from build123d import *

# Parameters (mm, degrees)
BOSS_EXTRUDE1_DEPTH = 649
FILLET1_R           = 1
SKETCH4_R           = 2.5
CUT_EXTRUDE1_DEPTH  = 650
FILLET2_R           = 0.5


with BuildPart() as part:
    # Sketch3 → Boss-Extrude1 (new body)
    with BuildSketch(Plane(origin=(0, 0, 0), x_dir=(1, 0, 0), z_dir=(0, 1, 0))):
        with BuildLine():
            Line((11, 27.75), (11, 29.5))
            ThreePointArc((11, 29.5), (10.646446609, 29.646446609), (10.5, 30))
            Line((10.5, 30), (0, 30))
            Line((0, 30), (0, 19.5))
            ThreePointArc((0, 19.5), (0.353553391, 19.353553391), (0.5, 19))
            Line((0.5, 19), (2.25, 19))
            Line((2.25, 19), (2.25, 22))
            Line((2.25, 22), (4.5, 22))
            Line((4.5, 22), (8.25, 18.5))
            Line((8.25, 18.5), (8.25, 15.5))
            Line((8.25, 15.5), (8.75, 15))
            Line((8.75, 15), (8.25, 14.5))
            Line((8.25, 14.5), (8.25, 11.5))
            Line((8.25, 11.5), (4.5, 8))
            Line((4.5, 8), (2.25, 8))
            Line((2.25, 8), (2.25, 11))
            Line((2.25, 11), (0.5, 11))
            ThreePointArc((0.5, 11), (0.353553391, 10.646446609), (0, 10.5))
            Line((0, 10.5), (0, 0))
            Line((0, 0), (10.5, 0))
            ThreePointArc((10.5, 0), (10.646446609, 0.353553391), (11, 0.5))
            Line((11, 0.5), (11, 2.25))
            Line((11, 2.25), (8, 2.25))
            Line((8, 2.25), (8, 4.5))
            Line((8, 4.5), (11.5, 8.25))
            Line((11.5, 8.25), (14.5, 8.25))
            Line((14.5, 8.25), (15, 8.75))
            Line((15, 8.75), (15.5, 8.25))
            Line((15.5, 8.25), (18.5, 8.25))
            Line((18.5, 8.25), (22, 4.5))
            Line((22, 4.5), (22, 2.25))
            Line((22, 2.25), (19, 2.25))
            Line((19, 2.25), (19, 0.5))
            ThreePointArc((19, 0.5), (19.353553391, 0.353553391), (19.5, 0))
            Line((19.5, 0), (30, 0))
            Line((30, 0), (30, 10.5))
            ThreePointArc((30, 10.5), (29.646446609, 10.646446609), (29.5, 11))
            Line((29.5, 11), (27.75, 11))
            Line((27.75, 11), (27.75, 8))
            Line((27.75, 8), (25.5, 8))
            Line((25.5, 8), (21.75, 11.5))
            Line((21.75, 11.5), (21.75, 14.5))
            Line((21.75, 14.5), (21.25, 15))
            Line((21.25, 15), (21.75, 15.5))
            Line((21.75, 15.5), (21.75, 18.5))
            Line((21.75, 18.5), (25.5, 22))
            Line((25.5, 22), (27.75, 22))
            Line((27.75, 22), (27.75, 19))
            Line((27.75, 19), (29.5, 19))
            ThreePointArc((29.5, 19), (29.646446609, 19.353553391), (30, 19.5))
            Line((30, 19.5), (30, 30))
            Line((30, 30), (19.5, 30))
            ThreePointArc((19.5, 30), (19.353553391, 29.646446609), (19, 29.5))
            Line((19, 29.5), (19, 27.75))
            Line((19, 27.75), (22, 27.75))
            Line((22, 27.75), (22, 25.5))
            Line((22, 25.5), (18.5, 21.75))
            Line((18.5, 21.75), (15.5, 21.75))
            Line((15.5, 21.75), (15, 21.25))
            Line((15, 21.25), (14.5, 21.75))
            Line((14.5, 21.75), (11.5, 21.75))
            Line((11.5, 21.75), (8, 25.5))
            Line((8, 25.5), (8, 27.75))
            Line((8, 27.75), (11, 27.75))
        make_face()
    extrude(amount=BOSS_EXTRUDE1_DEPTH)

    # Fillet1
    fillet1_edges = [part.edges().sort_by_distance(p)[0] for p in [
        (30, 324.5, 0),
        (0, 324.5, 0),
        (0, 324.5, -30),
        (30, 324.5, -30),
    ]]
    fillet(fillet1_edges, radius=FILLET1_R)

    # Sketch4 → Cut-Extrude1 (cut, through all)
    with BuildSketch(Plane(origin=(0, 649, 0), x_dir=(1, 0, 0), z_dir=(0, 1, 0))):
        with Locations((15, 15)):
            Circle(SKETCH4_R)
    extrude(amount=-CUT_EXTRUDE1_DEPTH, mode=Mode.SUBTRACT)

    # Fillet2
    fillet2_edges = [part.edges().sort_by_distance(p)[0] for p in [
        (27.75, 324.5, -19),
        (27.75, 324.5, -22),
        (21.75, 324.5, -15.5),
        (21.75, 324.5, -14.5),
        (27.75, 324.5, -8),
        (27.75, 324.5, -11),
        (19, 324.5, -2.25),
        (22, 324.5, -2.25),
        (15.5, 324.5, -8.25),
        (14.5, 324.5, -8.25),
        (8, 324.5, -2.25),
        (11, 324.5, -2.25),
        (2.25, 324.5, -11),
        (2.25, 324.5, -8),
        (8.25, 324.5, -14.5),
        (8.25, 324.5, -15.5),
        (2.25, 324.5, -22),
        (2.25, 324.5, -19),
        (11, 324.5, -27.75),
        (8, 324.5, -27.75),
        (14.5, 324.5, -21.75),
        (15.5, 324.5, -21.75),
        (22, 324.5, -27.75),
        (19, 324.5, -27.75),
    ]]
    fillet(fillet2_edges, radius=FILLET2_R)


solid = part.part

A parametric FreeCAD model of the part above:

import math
import FreeCAD as App
import Part
import Sketcher
from FreeCAD import Vector
Q = App.Units.Quantity


def edges_at(feature, points):
    """Names of the edges that pass closest to the given points."""
    edges = feature.Shape.Edges
    near = lambda p: min(range(len(edges)), key=lambda i: edges[i].distToShape(Part.Vertex(*p))[0])
    return sorted({f"Edge{near(p) + 1}" for p in points})

doc = App.newDocument("Part")
body = doc.addObject("PartDesign::Body", "Body")

sketch1 = body.newObject("Sketcher::SketchObject", "Sketch")
sketch1.AttachmentSupport = (doc.getObject("XZ_Plane"), [""])
sketch1.MapMode = "FlatFace"
sketch1.addGeometry([
    Part.LineSegment(Vector(11, -27.75, 0), Vector(11, -29.5, 0)),
    Part.ArcOfCircle(Part.Circle(Vector(11, -30, 0), Vector(0, 0, 1), 0.5), math.radians(90), math.radians(180)),
    Part.LineSegment(Vector(10.5, -30, 0), Vector(0, -30, 0)),
    Part.LineSegment(Vector(0, -30, 0), Vector(0, -19.5, 0)),
    Part.ArcOfCircle(Part.Circle(Vector(0, -19, 0), Vector(0, 0, 1), 0.5), math.radians(-90), math.radians(0)),
    Part.LineSegment(Vector(0.5, -19, 0), Vector(2.25, -19, 0)),
    Part.LineSegment(Vector(2.25, -19, 0), Vector(2.25, -22, 0)),
    Part.LineSegment(Vector(2.25, -22, 0), Vector(4.5, -22, 0)),
    Part.LineSegment(Vector(4.5, -22, 0), Vector(8.25, -18.5, 0)),
    Part.LineSegment(Vector(8.25, -18.5, 0), Vector(8.25, -15.5, 0)),
    Part.LineSegment(Vector(8.25, -15.5, 0), Vector(8.75, -15, 0)),
    Part.LineSegment(Vector(8.75, -15, 0), Vector(8.25, -14.5, 0)),
    Part.LineSegment(Vector(8.25, -14.5, 0), Vector(8.25, -11.5, 0)),
    Part.LineSegment(Vector(8.25, -11.5, 0), Vector(4.5, -8, 0)),
    Part.LineSegment(Vector(4.5, -8, 0), Vector(2.25, -8, 0)),
    Part.LineSegment(Vector(2.25, -8, 0), Vector(2.25, -11, 0)),
    Part.LineSegment(Vector(2.25, -11, 0), Vector(0.5, -11, 0)),
    Part.ArcOfCircle(Part.Circle(Vector(0, -11, 0), Vector(0, 0, 1), 0.5), math.radians(0), math.radians(90)),
    Part.LineSegment(Vector(0, -10.5, 0), Vector(0, 0, 0)),
    Part.LineSegment(Vector(0, 0, 0), Vector(10.5, 0, 0)),
    Part.ArcOfCircle(Part.Circle(Vector(11, 0, 0), Vector(0, 0, 1), 0.5), math.radians(180), math.radians(270)),
    Part.LineSegment(Vector(11, -0.5, 0), Vector(11, -2.25, 0)),
    Part.LineSegment(Vector(11, -2.25, 0), Vector(8, -2.25, 0)),
    Part.LineSegment(Vector(8, -2.25, 0), Vector(8, -4.5, 0)),
    Part.LineSegment(Vector(8, -4.5, 0), Vector(11.5, -8.25, 0)),
    Part.LineSegment(Vector(11.5, -8.25, 0), Vector(14.5, -8.25, 0)),
    Part.LineSegment(Vector(14.5, -8.25, 0), Vector(15, -8.75, 0)),
    Part.LineSegment(Vector(15, -8.75, 0), Vector(15.5, -8.25, 0)),
    Part.LineSegment(Vector(15.5, -8.25, 0), Vector(18.5, -8.25, 0)),
    Part.LineSegment(Vector(18.5, -8.25, 0), Vector(22, -4.5, 0)),
    Part.LineSegment(Vector(22, -4.5, 0), Vector(22, -2.25, 0)),
    Part.LineSegment(Vector(22, -2.25, 0), Vector(19, -2.25, 0)),
    Part.LineSegment(Vector(19, -2.25, 0), Vector(19, -0.5, 0)),
    Part.ArcOfCircle(Part.Circle(Vector(19, 0, 0), Vector(0, 0, 1), 0.5), math.radians(-90), math.radians(0)),
    Part.LineSegment(Vector(19.5, 0, 0), Vector(30, 0, 0)),
    Part.LineSegment(Vector(30, 0, 0), Vector(30, -10.5, 0)),
    Part.ArcOfCircle(Part.Circle(Vector(30, -11, 0), Vector(0, 0, 1), 0.5), math.radians(90), math.radians(180)),
    Part.LineSegment(Vector(29.5, -11, 0), Vector(27.75, -11, 0)),
    Part.LineSegment(Vector(27.75, -11, 0), Vector(27.75, -8, 0)),
    Part.LineSegment(Vector(27.75, -8, 0), Vector(25.5, -8, 0)),
    Part.LineSegment(Vector(25.5, -8, 0), Vector(21.75, -11.5, 0)),
    Part.LineSegment(Vector(21.75, -11.5, 0), Vector(21.75, -14.5, 0)),
    Part.LineSegment(Vector(21.75, -14.5, 0), Vector(21.25, -15, 0)),
    Part.LineSegment(Vector(21.25, -15, 0), Vector(21.75, -15.5, 0)),
    Part.LineSegment(Vector(21.75, -15.5, 0), Vector(21.75, -18.5, 0)),
    Part.LineSegment(Vector(21.75, -18.5, 0), Vector(25.5, -22, 0)),
    Part.LineSegment(Vector(25.5, -22, 0), Vector(27.75, -22, 0)),
    Part.LineSegment(Vector(27.75, -22, 0), Vector(27.75, -19, 0)),
    Part.LineSegment(Vector(27.75, -19, 0), Vector(29.5, -19, 0)),
    Part.ArcOfCircle(Part.Circle(Vector(30, -19, 0), Vector(0, 0, 1), 0.5), math.radians(180), math.radians(270)),
    Part.LineSegment(Vector(30, -19.5, 0), Vector(30, -30, 0)),
    Part.LineSegment(Vector(30, -30, 0), Vector(19.5, -30, 0)),
    Part.ArcOfCircle(Part.Circle(Vector(19, -30, 0), Vector(0, 0, 1), 0.5), math.radians(0), math.radians(90)),
    Part.LineSegment(Vector(19, -29.5, 0), Vector(19, -27.75, 0)),
    Part.LineSegment(Vector(19, -27.75, 0), Vector(22, -27.75, 0)),
    Part.LineSegment(Vector(22, -27.75, 0), Vector(22, -25.5, 0)),
    Part.LineSegment(Vector(22, -25.5, 0), Vector(18.5, -21.75, 0)),
    Part.LineSegment(Vector(18.5, -21.75, 0), Vector(15.5, -21.75, 0)),
    Part.LineSegment(Vector(15.5, -21.75, 0), Vector(15, -21.25, 0)),
    Part.LineSegment(Vector(15, -21.25, 0), Vector(14.5, -21.75, 0)),
    Part.LineSegment(Vector(14.5, -21.75, 0), Vector(11.5, -21.75, 0)),
    Part.LineSegment(Vector(11.5, -21.75, 0), Vector(8, -25.5, 0)),
    Part.LineSegment(Vector(8, -25.5, 0), Vector(8, -27.75, 0)),
    Part.LineSegment(Vector(8, -27.75, 0), Vector(11, -27.75, 0)),
], False)
sketch1.addConstraint([
    Sketcher.Constraint("Coincident", 0, 2, 1, 1),
    Sketcher.Constraint("Coincident", 1, 2, 2, 1),
    Sketcher.Constraint("Coincident", 2, 2, 3, 1),
    Sketcher.Constraint("Coincident", 3, 2, 4, 1),
    Sketcher.Constraint("Coincident", 4, 2, 5, 1),
    Sketcher.Constraint("Coincident", 5, 2, 6, 1),
    Sketcher.Constraint("Coincident", 6, 2, 7, 1),
    Sketcher.Constraint("Coincident", 7, 2, 8, 1),
    Sketcher.Constraint("Coincident", 8, 2, 9, 1),
    Sketcher.Constraint("Coincident", 9, 2, 10, 1),
    Sketcher.Constraint("Coincident", 10, 2, 11, 1),
    Sketcher.Constraint("Coincident", 11, 2, 12, 1),
    Sketcher.Constraint("Coincident", 12, 2, 13, 1),
    Sketcher.Constraint("Coincident", 13, 2, 14, 1),
    Sketcher.Constraint("Coincident", 14, 2, 15, 1),
    Sketcher.Constraint("Coincident", 15, 2, 16, 1),
    Sketcher.Constraint("Coincident", 16, 2, 17, 1),
    Sketcher.Constraint("Coincident", 17, 2, 18, 1),
    Sketcher.Constraint("Coincident", 18, 2, 19, 1),
    Sketcher.Constraint("Coincident", 19, 2, 20, 1),
    Sketcher.Constraint("Coincident", 20, 2, 21, 1),
    Sketcher.Constraint("Coincident", 21, 2, 22, 1),
    Sketcher.Constraint("Coincident", 22, 2, 23, 1),
    Sketcher.Constraint("Coincident", 23, 2, 24, 1),
    Sketcher.Constraint("Coincident", 24, 2, 25, 1),
    Sketcher.Constraint("Coincident", 25, 2, 26, 1),
    Sketcher.Constraint("Coincident", 26, 2, 27, 1),
    Sketcher.Constraint("Coincident", 27, 2, 28, 1),
    Sketcher.Constraint("Coincident", 28, 2, 29, 1),
    Sketcher.Constraint("Coincident", 29, 2, 30, 1),
    Sketcher.Constraint("Coincident", 30, 2, 31, 1),
    Sketcher.Constraint("Coincident", 31, 2, 32, 1),
    Sketcher.Constraint("Coincident", 32, 2, 33, 1),
    Sketcher.Constraint("Coincident", 33, 2, 34, 1),
    Sketcher.Constraint("Coincident", 34, 2, 35, 1),
    Sketcher.Constraint("Coincident", 35, 2, 36, 1),
    Sketcher.Constraint("Coincident", 36, 2, 37, 1),
    Sketcher.Constraint("Coincident", 37, 2, 38, 1),
    Sketcher.Constraint("Coincident", 38, 2, 39, 1),
    Sketcher.Constraint("Coincident", 39, 2, 40, 1),
    Sketcher.Constraint("Coincident", 40, 2, 41, 1),
    Sketcher.Constraint("Coincident", 41, 2, 42, 1),
    Sketcher.Constraint("Coincident", 42, 2, 43, 1),
    Sketcher.Constraint("Coincident", 43, 2, 44, 1),
    Sketcher.Constraint("Coincident", 44, 2, 45, 1),
    Sketcher.Constraint("Coincident", 45, 2, 46, 1),
    Sketcher.Constraint("Coincident", 46, 2, 47, 1),
    Sketcher.Constraint("Coincident", 47, 2, 48, 1),
    Sketcher.Constraint("Coincident", 48, 2, 49, 1),
    Sketcher.Constraint("Coincident", 49, 2, 50, 1),
    Sketcher.Constraint("Coincident", 50, 2, 51, 1),
    Sketcher.Constraint("Coincident", 51, 2, 52, 1),
    Sketcher.Constraint("Coincident", 52, 2, 53, 1),
    Sketcher.Constraint("Coincident", 53, 2, 54, 1),
    Sketcher.Constraint("Coincident", 54, 2, 55, 1),
    Sketcher.Constraint("Coincident", 55, 2, 56, 1),
    Sketcher.Constraint("Coincident", 56, 2, 57, 1),
    Sketcher.Constraint("Coincident", 57, 2, 58, 1),
    Sketcher.Constraint("Coincident", 58, 2, 59, 1),
    Sketcher.Constraint("Coincident", 59, 2, 60, 1),
    Sketcher.Constraint("Coincident", 60, 2, 61, 1),
    Sketcher.Constraint("Coincident", 61, 2, 62, 1),
    Sketcher.Constraint("Coincident", 62, 2, 63, 1),
    Sketcher.Constraint("Coincident", 63, 2, 0, 1),
    Sketcher.Constraint("Vertical", 0),
    Sketcher.Constraint("Horizontal", 2),
    Sketcher.Constraint("Vertical", 3),
    Sketcher.Constraint("Horizontal", 5),
    Sketcher.Constraint("Vertical", 6),
    Sketcher.Constraint("Horizontal", 7),
    Sketcher.Constraint("Vertical", 9),
    Sketcher.Constraint("Vertical", 12),
    Sketcher.Constraint("Horizontal", 14),
    Sketcher.Constraint("Vertical", 15),
    Sketcher.Constraint("Horizontal", 16),
    Sketcher.Constraint("Vertical", 18),
    Sketcher.Constraint("Horizontal", 19),
    Sketcher.Constraint("Vertical", 21),
    Sketcher.Constraint("Horizontal", 22),
    Sketcher.Constraint("Vertical", 23),
    Sketcher.Constraint("Horizontal", 25),
    Sketcher.Constraint("Horizontal", 28),
    Sketcher.Constraint("Vertical", 30),
    Sketcher.Constraint("Horizontal", 31),
    Sketcher.Constraint("Vertical", 32),
    Sketcher.Constraint("Horizontal", 34),
    Sketcher.Constraint("Vertical", 35),
    Sketcher.Constraint("Horizontal", 37),
    Sketcher.Constraint("Vertical", 38),
    Sketcher.Constraint("Horizontal", 39),
    Sketcher.Constraint("Vertical", 41),
    Sketcher.Constraint("Vertical", 44),
    Sketcher.Constraint("Horizontal", 46),
    Sketcher.Constraint("Vertical", 47),
    Sketcher.Constraint("Horizontal", 48),
    Sketcher.Constraint("Vertical", 50),
    Sketcher.Constraint("Horizontal", 51),
    Sketcher.Constraint("Vertical", 53),
    Sketcher.Constraint("Horizontal", 54),
    Sketcher.Constraint("Vertical", 55),
    Sketcher.Constraint("Horizontal", 57),
    Sketcher.Constraint("Horizontal", 60),
    Sketcher.Constraint("Vertical", 62),
    Sketcher.Constraint("Horizontal", 63),
    Sketcher.Constraint("Coincident", 18, 2, -1, 1),
    Sketcher.Constraint("Equal", 1, 4),
    Sketcher.Constraint("Equal", 4, 17),
    Sketcher.Constraint("Equal", 17, 20),
    Sketcher.Constraint("Equal", 20, 33),
    Sketcher.Constraint("Equal", 33, 36),
    Sketcher.Constraint("Equal", 36, 49),
    Sketcher.Constraint("Equal", 49, 52),
    Sketcher.Constraint("PointOnObject", 4, 3, -2),
    Sketcher.Constraint("PointOnObject", 17, 3, -2),
    Sketcher.Constraint("PointOnObject", 20, 3, -1),
    Sketcher.Constraint("PointOnObject", 33, 3, -1),
    Sketcher.Constraint("PointOnObject", 2, 2, -2),
    Sketcher.Constraint("PointOnObject", 33, 2, -1),
    Sketcher.Constraint("Perpendicular", 10, 11),
    Sketcher.Constraint("Perpendicular", 8, 24),
    Sketcher.Constraint("Parallel", 11, 26),
    Sketcher.Constraint("Perpendicular", 26, 27),
    Sketcher.Constraint("Perpendicular", 13, 29),
    Sketcher.Constraint("Perpendicular", 24, 40),
    Sketcher.Constraint("Parallel", 27, 42),
    Sketcher.Constraint("Perpendicular", 42, 43),
    Sketcher.Constraint("Perpendicular", 29, 45),
    Sketcher.Constraint("Perpendicular", 40, 56),
    Sketcher.Constraint("Parallel", 43, 58),
    Sketcher.Constraint("Perpendicular", 58, 59),
    Sketcher.Constraint("Perpendicular", 45, 61),
    Sketcher.Constraint("Horizontal", 17, 3, 36, 3),
    Sketcher.Constraint("Horizontal", 4, 3, 49, 3),
    Sketcher.Constraint("Horizontal", 1, 3, 52, 3),
    Sketcher.Constraint("Horizontal", 52, 3, 1, 2),
    Sketcher.Constraint("Horizontal", 49, 3, 4, 2),
    Sketcher.Constraint("Horizontal", 36, 3, 15, 2),
    Sketcher.Constraint("Horizontal", 25, 2, 27, 2),
    Sketcher.Constraint("Horizontal", 23, 2, 29, 2),
    Sketcher.Constraint("Horizontal", 22, 2, 30, 2),
    Sketcher.Constraint("Horizontal", 16, 2, 36, 2),
    Sketcher.Constraint("Horizontal", 14, 2, 38, 2),
    Sketcher.Constraint("Horizontal", 12, 2, 40, 2),
    Sketcher.Constraint("Horizontal", 11, 2, 41, 2),
    Sketcher.Constraint("Horizontal", 10, 2, 42, 2),
    Sketcher.Constraint("Horizontal", 9, 2, 43, 2),
    Sketcher.Constraint("Horizontal", 8, 2, 44, 2),
    Sketcher.Constraint("Horizontal", 7, 2, 45, 2),
    Sketcher.Constraint("Horizontal", 5, 2, 47, 2),
    Sketcher.Constraint("Horizontal", 2, 2, 50, 2),
    Sketcher.Constraint("Horizontal", 57, 2, 59, 2),
    Sketcher.Constraint("Horizontal", 55, 2, 61, 2),
    Sketcher.Constraint("Horizontal", 54, 2, 62, 2),
    Sketcher.Constraint("Vertical", 1, 3, 20, 3),
    Sketcher.Constraint("Vertical", 36, 3, 49, 3),
    Sketcher.Constraint("Vertical", 33, 3, 52, 3),
    Sketcher.Constraint("Vertical", 20, 3, 0, 2),
    Sketcher.Constraint("Vertical", 9, 2, 11, 2),
    Sketcher.Constraint("Vertical", 7, 2, 13, 2),
    Sketcher.Constraint("Vertical", 6, 2, 14, 2),
    Sketcher.Constraint("Vertical", 0, 2, 20, 2),
    Sketcher.Constraint("Vertical", 52, 3, 31, 2),
    Sketcher.Constraint("Vertical", 49, 3, 34, 2),
    Sketcher.Constraint("Vertical", 41, 2, 43, 2),
    Sketcher.Constraint("Vertical", 39, 2, 45, 2),
    Sketcher.Constraint("Vertical", 38, 2, 46, 2),
    Sketcher.Constraint("Vertical", 35, 2, 49, 2),
    Sketcher.Constraint("Vertical", 32, 2, 52, 2),
    Sketcher.Constraint("Vertical", 30, 2, 54, 2),
    Sketcher.Constraint("Vertical", 28, 2, 56, 2),
    Sketcher.Constraint("Vertical", 27, 2, 57, 2),
    Sketcher.Constraint("Vertical", 26, 2, 58, 2),
    Sketcher.Constraint("Vertical", 24, 2, 60, 2),
    Sketcher.Constraint("Equal", 22, 25),
    Sketcher.Constraint("Equal", 25, 28),
    Sketcher.Constraint("Equal", 28, 31),
    Sketcher.Constraint("Equal", 19, 34),
    Sketcher.Constraint("Equal", 16, 37),
    Sketcher.Constraint("Equal", 14, 39),
    Sketcher.Constraint("Equal", 48, 0),
    Sketcher.Constraint("Equal", 51, 3),
    Sketcher.Constraint("Equal", 63, 6),
    Sketcher.Constraint("Equal", 6, 9),
    Sketcher.Constraint("Equal", 9, 12),
    Sketcher.Constraint("Equal", 12, 15),
    Sketcher.Constraint("Equal", 3, 18),
    Sketcher.Constraint("Equal", 0, 21),
    Sketcher.Constraint("Equal", 46, 23),
    Sketcher.Constraint("Equal", 30, 55),
    Sketcher.Constraint("Equal", 13, 24),
    Sketcher.Constraint("Equal", 11, 26),
    Sketcher.Constraint("Radius", 1, Q("0.5 mm")),
    Sketcher.Constraint("DistanceX", 22, 2, 22, 1, Q("3 mm")),
    Sketcher.Constraint("DistanceX", 2, 2, 2, 1, Q("10.5 mm")),
    Sketcher.Constraint("DistanceY", 1, 3, -1, 1, Q("30 mm")),
    Sketcher.Constraint("DistanceX", 5, 1, 5, 2, Q("1.75 mm")),
    Sketcher.Constraint("DistanceX", 7, 1, 7, 2, Q("2.25 mm")),
    Sketcher.Constraint("DistanceY", 8, 2, -1, 1, Q("18.5 mm")),
    Sketcher.Constraint("DistanceX", -1, 1, 8, 2, Q("8.25 mm")),
])
pad1 = body.newObject("PartDesign::Pad", "Pad")
pad1.Profile = sketch1
pad1.Length = 649
pad1.Reversed = True
doc.recompute()

fillet = body.newObject("PartDesign::Fillet", "Fillet")
fillet.Base = (pad1, edges_at(pad1, [
    (30, 324.5, 0),
    (0, 324.5, 0),
    (0, 324.5, -30),
    (30, 324.5, -30),
]))
fillet.Radius = 1

sketch2 = body.newObject("Sketcher::SketchObject", "Sketch001")
sketch2.AttachmentSupport = (doc.getObject("XZ_Plane"), [""])
sketch2.MapMode = "FlatFace"
sketch2.AttachmentOffset = App.Placement(Vector(0, 0, -649), App.Rotation())
sketch2.addGeometry(Part.Circle(Vector(15, -15, 0), Vector(0, 0, 1), 2.5), False)
sketch2.addConstraint([
    Sketcher.Constraint("Diameter", 0, Q("5 mm")),
    Sketcher.Constraint("DistanceX", -1, 1, 0, 3, Q("15 mm")),
    Sketcher.Constraint("DistanceY", 0, 3, -1, 1, Q("15 mm")),
])
pocket1 = body.newObject("PartDesign::Pocket", "Pocket")
pocket1.Profile = sketch2
pocket1.Type = "ThroughAll"
pocket1.Reversed = True
doc.recompute()

fillet2 = body.newObject("PartDesign::Fillet", "Fillet001")
fillet2.Base = (pocket1, edges_at(pocket1, [
    (27.75, 324.5, -19),
    (27.75, 324.5, -22),
    (21.75, 324.5, -15.5),
    (21.75, 324.5, -14.5),
    (27.75, 324.5, -8),
    (27.75, 324.5, -11),
    (19, 324.5, -2.25),
    (22, 324.5, -2.25),
    (15.5, 324.5, -8.25),
    (14.5, 324.5, -8.25),
    (8, 324.5, -2.25),
    (11, 324.5, -2.25),
    (2.25, 324.5, -11),
    (2.25, 324.5, -8),
    (8.25, 324.5, -14.5),
    (8.25, 324.5, -15.5),
    (2.25, 324.5, -22),
    (2.25, 324.5, -19),
    (11, 324.5, -27.75),
    (8, 324.5, -27.75),
    (14.5, 324.5, -21.75),
    (15.5, 324.5, -21.75),
    (22, 324.5, -27.75),
    (19, 324.5, -27.75),
]))
fillet2.Radius = 0.5

doc.recompute()
